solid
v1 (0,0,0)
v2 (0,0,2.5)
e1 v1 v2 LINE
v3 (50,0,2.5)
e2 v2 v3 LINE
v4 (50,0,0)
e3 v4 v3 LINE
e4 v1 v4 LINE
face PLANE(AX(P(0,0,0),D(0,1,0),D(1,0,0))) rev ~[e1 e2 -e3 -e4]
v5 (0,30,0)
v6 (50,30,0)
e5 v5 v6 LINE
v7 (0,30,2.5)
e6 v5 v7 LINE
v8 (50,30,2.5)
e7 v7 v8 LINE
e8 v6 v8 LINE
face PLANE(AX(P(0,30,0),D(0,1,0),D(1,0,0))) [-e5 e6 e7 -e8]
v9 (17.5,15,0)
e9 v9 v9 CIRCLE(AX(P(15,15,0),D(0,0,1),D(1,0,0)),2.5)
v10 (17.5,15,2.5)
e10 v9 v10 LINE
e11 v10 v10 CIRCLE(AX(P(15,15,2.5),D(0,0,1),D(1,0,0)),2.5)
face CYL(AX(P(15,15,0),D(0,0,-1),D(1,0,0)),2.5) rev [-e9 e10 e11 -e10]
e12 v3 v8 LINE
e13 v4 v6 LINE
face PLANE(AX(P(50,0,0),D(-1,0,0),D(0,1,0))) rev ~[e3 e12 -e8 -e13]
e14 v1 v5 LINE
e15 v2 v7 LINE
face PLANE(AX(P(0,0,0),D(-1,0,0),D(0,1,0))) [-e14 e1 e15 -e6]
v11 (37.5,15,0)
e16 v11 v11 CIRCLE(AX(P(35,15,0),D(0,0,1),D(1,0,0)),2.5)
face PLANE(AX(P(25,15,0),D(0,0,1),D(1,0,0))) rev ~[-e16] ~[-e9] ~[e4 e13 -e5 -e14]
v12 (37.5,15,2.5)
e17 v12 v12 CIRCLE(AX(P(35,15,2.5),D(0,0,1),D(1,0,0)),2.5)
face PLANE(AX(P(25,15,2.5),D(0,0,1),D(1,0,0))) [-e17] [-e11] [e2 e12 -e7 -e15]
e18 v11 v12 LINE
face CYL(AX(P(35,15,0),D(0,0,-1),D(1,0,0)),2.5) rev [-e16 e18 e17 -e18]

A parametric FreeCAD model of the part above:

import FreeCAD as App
import Part
import Sketcher

V = App.Vector
Q = App.Units.Quantity

doc = App.newDocument("Part")
body = doc.addObject("PartDesign::Body", "Body")

sketch1 = doc.addObject("Sketcher::SketchObject", "Sketch")
body.addObject(sketch1)
sketch1.AttachmentSupport = (doc.XY_Plane, [""])
sketch1.MapMode = "FlatFace"
sketch1.addGeometry(Part.LineSegment(V(0, 30, 0), V(0, 0, 0)), False)
sketch1.addGeometry(Part.LineSegment(V(0, 0, 0), V(50, 0, 0)), False)
sketch1.addGeometry(Part.LineSegment(V(50, 0, 0), V(50, 30, 0)), False)
sketch1.addGeometry(Part.LineSegment(V(50, 30, 0), V(0, 30, 0)), False)
sketch1.addGeometry(Part.Circle(V(15, 15, 0), V(0, 0, 1), 2.5), False)
sketch1.addGeometry(Part.Circle(V(35, 15, 0), V(0, 0, 1), 2.5), False)
sketch1.addConstraint(Sketcher.Constraint("Coincident", 0, 2, 1, 1))
sketch1.addConstraint(Sketcher.Constraint("Coincident", 1, 2, 2, 1))
sketch1.addConstraint(Sketcher.Constraint("Coincident", 2, 2, 3, 1))
sketch1.addConstraint(Sketcher.Constraint("Coincident", 3, 2, 0, 1))
sketch1.addConstraint(Sketcher.Constraint("Vertical", 0))
sketch1.addConstraint(Sketcher.Constraint("Horizontal", 1))
sketch1.addConstraint(Sketcher.Constraint("Vertical", 2))
sketch1.addConstraint(Sketcher.Constraint("Horizontal", 3))
sketch1.addConstraint(Sketcher.Constraint("Coincident", 0, 2, -1, 1))
sketch1.addConstraint(Sketcher.Constraint("Equal", 4, 5))
sketch1.addConstraint(Sketcher.Constraint("Horizontal", 4, 3, 5, 3))
sketch1.addConstraint(Sketcher.Constraint("Diameter", 4, Q("5 mm")))
sketch1.addConstraint(Sketcher.Constraint("DistanceX", 1, 1, 1, 2, Q("50 mm")))
sketch1.addConstraint(Sketcher.Constraint("DistanceY", 0, 2, 0, 1, Q("30 mm")))
sketch1.addConstraint(Sketcher.Constraint("DistanceX", -1, 1, 4, 3, Q("15 mm")))
sketch1.addConstraint(Sketcher.Constraint("DistanceY", -1, 1, 4, 3, Q("15 mm")))
sketch1.addConstraint(Sketcher.Constraint("DistanceX", -1, 1, 5, 3, Q("35 mm")))
pad1 = doc.addObject("PartDesign::Pad", "Pad")
body.addObject(pad1)
pad1.Profile = sketch1
pad1.Length = 2.5

doc.recompute()
